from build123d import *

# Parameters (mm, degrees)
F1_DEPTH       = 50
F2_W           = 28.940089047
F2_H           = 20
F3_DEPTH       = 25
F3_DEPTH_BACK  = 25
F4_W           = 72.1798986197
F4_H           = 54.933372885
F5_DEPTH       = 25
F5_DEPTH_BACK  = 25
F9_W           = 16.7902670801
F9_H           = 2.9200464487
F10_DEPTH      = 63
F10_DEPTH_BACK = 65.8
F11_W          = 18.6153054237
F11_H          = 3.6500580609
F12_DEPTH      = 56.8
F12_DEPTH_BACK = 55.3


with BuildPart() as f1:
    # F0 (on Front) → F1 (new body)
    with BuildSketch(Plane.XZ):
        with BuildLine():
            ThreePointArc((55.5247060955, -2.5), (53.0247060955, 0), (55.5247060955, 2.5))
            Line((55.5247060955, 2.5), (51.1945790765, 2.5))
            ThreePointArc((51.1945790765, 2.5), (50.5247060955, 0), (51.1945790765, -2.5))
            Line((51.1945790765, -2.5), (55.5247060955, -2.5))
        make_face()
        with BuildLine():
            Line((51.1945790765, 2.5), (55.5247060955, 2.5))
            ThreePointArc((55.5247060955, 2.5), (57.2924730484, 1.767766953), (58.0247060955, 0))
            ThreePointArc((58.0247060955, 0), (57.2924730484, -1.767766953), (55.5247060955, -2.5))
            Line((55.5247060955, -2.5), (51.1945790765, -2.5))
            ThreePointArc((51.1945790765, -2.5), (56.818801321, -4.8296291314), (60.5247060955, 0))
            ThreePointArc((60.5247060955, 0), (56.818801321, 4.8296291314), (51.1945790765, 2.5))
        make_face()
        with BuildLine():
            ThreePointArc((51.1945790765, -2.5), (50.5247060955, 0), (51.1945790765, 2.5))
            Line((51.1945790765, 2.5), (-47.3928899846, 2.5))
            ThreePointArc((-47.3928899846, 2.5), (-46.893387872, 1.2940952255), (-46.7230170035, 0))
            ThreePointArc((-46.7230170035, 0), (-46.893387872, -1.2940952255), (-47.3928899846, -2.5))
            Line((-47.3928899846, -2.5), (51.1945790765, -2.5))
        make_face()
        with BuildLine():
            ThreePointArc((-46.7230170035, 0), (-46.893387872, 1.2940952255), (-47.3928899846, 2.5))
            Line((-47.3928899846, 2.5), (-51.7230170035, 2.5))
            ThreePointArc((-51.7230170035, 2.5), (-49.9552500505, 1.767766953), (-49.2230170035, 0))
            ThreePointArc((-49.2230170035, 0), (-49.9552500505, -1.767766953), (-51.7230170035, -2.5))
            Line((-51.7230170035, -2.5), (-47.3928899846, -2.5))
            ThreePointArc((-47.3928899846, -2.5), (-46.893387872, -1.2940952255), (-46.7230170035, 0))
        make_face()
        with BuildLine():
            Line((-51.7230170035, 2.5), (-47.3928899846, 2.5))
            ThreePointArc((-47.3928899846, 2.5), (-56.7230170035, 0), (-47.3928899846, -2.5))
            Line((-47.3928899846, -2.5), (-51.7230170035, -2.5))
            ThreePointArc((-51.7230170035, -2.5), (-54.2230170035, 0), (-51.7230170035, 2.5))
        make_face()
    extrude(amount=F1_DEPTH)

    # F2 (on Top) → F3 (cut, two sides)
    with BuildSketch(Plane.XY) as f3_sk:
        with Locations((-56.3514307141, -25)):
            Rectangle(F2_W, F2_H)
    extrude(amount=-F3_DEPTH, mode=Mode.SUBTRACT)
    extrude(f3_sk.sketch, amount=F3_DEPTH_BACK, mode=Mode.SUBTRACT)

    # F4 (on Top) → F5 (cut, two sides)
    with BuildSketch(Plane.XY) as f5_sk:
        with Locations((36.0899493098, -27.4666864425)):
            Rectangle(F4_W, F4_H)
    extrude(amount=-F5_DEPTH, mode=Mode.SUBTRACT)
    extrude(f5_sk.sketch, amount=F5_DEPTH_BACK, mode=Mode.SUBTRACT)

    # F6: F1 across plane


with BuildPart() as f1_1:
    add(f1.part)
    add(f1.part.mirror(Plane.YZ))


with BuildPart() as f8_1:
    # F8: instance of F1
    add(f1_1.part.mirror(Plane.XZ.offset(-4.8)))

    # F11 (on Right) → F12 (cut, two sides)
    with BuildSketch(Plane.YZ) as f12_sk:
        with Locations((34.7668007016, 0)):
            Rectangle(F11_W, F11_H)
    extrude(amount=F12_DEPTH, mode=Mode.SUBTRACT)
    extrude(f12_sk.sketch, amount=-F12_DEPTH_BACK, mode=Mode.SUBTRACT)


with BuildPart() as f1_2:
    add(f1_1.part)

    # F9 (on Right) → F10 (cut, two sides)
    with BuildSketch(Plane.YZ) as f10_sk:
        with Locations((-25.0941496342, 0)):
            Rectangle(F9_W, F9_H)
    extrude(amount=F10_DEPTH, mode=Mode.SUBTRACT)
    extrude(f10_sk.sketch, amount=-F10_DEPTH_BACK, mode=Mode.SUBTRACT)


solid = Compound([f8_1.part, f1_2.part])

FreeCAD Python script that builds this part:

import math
import FreeCAD as App
import Part
import Sketcher

V = App.Vector
Q = App.Units.Quantity


def add_polygon(sketch, points):
    """Adds a closed chain of lines whose ends are joined by coincident constraints."""
    first, n = sketch.GeometryCount, len(points)
    for a, b in zip(points, points[1:] + points[:1]):
        sketch.addGeometry(Part.LineSegment(App.Vector(*a, 0), App.Vector(*b, 0)), False)
    for i in range(n):
        sketch.addConstraint(Sketcher.Constraint("Coincident", first + i, 2, first + (i + 1) % n, 1))

doc = App.newDocument("Part")
body = doc.addObject("PartDesign::Body", "Body")

# Sketch on XZ plane
sketch1 = doc.addObject("Sketcher::SketchObject", "Sketch")
body.addObject(sketch1)
sketch1.AttachmentSupport = (doc.XZ_Plane, [""])
sketch1.MapMode = "FlatFace"
sketch1.addGeometry([
    Part.ArcOfCircle(Part.Circle(V(55.5, 0, 0), V(0, 0, 1), 5), math.radians(-150), math.radians(0)),  # 0
    Part.ArcOfCircle(Part.Circle(V(55.5, 0, 0), V(0, 0, 1), 5), math.radians(0), math.radians(150)),  # 1
    Part.LineSegment(V(51.2, 2.5, 0), V(-47.4, 2.5, 0)),  # 2
    Part.ArcOfCircle(Part.Circle(V(-51.7, 0, 0), V(0, 0, 1), 5), math.radians(30), math.radians(330)),  # 3
    Part.LineSegment(V(-47.4, -2.5, 0), V(51.2, -2.5, 0)),  # 4
    Part.ArcOfCircle(Part.Circle(V(55.5, 0, 0), V(0, 0, 1), 2.5), math.radians(90), math.radians(270)),  # 5
    Part.ArcOfCircle(Part.Circle(V(55.5, 0, 0), V(0, 0, 1), 2.5), math.radians(0), math.radians(90)),  # 6
    Part.ArcOfCircle(Part.Circle(V(55.5, 0, 0), V(0, 0, 1), 2.5), math.radians(-90), math.radians(0)),  # 7
    Part.ArcOfCircle(Part.Circle(V(-51.7, 0, 0), V(0, 0, 1), 2.5), math.radians(0), math.radians(90)),  # 8
    Part.ArcOfCircle(Part.Circle(V(-51.7, 0, 0), V(0, 0, 1), 2.5), math.radians(-90), math.radians(0)),  # 9
    Part.ArcOfCircle(Part.Circle(V(-51.7, 0, 0), V(0, 0, 1), 2.5), math.radians(90), math.radians(270)),  # 10
], False)
sketch1.addConstraint([
    Sketcher.Constraint("Tangent", 0, 2, 1, 1),
    Sketcher.Constraint("Coincident", 1, 2, 2, 1),
    Sketcher.Constraint("Coincident", 2, 2, 3, 1),
    Sketcher.Constraint("Coincident", 3, 2, 4, 1),
    Sketcher.Constraint("Coincident", 4, 2, 0, 1),
    Sketcher.Constraint("Tangent", 5, 1, 6, 2),
    Sketcher.Constraint("Tangent", 6, 1, 7, 2),
    Sketcher.Constraint("Tangent", 7, 1, 5, 2),
    Sketcher.Constraint("Tangent", 8, 1, 9, 2),
    Sketcher.Constraint("Tangent", 9, 1, 10, 2),
    Sketcher.Constraint("Tangent", 10, 1, 8, 2),
    Sketcher.Constraint("Horizontal", 2),
    Sketcher.Constraint("Horizontal", 4),
    Sketcher.Constraint("Coincident", 5, 3, 0, 3),
    Sketcher.Constraint("Coincident", 8, 3, 3, 3),
    Sketcher.Constraint("Equal", 0, 1),
    Sketcher.Constraint("Equal", 1, 3),
    Sketcher.Constraint("Equal", 7, 8),
    Sketcher.Constraint("Symmetric", 2, 2, 3, 2, -1),
    Sketcher.Constraint("Symmetric", 5, 1, 7, 1, -1),
    Sketcher.Constraint("PointOnObject", 0, 2, -1),
    Sketcher.Constraint("PointOnObject", 6, 1, -1),
    Sketcher.Constraint("PointOnObject", 8, 1, -1),
    Sketcher.Constraint("Horizontal", 2, 2, 5, 1),
    Sketcher.Constraint("Vertical", 7, 3, 5, 1),
    Sketcher.Constraint("Vertical", 10, 3, 9, 1),
    Sketcher.Constraint("Vertical", 9, 1, 10, 1),
    Sketcher.Constraint("Radius", 0, Q("5 mm")),
    Sketcher.Constraint("Radius", 5, Q("2.5 mm")),
    Sketcher.Constraint("DistanceX", 2, 2, 2, 1, Q("98.587469 mm")),
    Sketcher.Constraint("DistanceX", -1, 1, 1, 2, Q("51.194579 mm")),
])
pad1 = doc.addObject("PartDesign::Pad", "Pad")
body.addObject(pad1)
pad1.Profile = sketch1
pad1.Length = 50

# Sketch on XY plane
sketch2 = doc.addObject("Sketcher::SketchObject", "Sketch001")
body.addObject(sketch2)
sketch2.AttachmentSupport = (doc.XY_Plane, [""])
sketch2.MapMode = "FlatFace"
add_polygon(sketch2, [(-71, -15), (-71, -35), (-42, -35), (-42, -15)])  # lines 0-3
sketch2.addConstraint([
    Sketcher.Constraint("Vertical", 0),
    Sketcher.Constraint("Horizontal", 1),
    Sketcher.Constraint("Vertical", 2),
    Sketcher.Constraint("Horizontal", 3),
    Sketcher.Constraint("DistanceY", 0, 2, 0, 1, Q("20 mm")),
    Sketcher.Constraint("DistanceY", 0, 2, -1, 1, Q("35 mm")),
    Sketcher.Constraint("DistanceX", 1, 1, 1, 2, Q("28.940089 mm")),
    Sketcher.Constraint("DistanceX", 0, 2, -1, 1, Q("70.821475 mm")),
])
pocket1 = doc.addObject("PartDesign::Pocket", "Pocket")
body.addObject(pocket1)
pocket1.Profile = sketch2
pocket1.Type = "ThroughAll"
pocket1.Midplane = True

# Sketch on XY plane
sketch3 = doc.addObject("Sketcher::SketchObject", "Sketch002")
body.addObject(sketch3)
sketch3.AttachmentSupport = (doc.XY_Plane, [""])
sketch3.MapMode = "FlatFace"
add_polygon(sketch3, [(0, 0), (0, -55), (72, -55), (72, 0)])  # lines 0-3
sketch3.addConstraint([
    Sketcher.Constraint("Vertical", 0),
    Sketcher.Constraint("Horizontal", 1),
    Sketcher.Constraint("Vertical", 2),
    Sketcher.Constraint("Horizontal", 3),
    Sketcher.Constraint("Coincident", 3, 2, -1, 1),
    Sketcher.Constraint("DistanceX", 1, 1, 1, 2, Q("72.179899 mm")),
    Sketcher.Constraint("DistanceY", 0, 2, 0, 1, Q("54.933373 mm")),
])
pocket2 = doc.addObject("PartDesign::Pocket", "Pocket001")
body.addObject(pocket2)
pocket2.Profile = sketch3
pocket2.Type = "ThroughAll"
pocket2.Midplane = True
body2 = doc.addObject("PartDesign::Body", "Body001")
doc.recompute()

body2.BaseFeature = body
doc.recompute()

mirroring = doc.addObject("Part::Mirroring", "Mirroring")
mirroring.Source = body
mirroring.Base = V(0, 0, 0)
mirroring.Normal = V(1, 0, 0)
body3 = doc.addObject("PartDesign::Body", "Body002")
body3.BaseFeature = mirroring
boolean = doc.addObject("PartDesign::Boolean", "Boolean")
body2.addObject(boolean)
boolean.Type = "Fuse"
boolean.addObjects([body3])
doc.recompute()
body4 = doc.addObject("PartDesign::Body", "Body003")
doc.recompute()

mirroring2 = doc.addObject("Part::Mirroring", "Mirroring001")
mirroring2.Source = body2
mirroring2.Base = V(0, 4.8, 0)
mirroring2.Normal = V(0, -1, 0)
body4.BaseFeature = mirroring2
doc.recompute()

# Sketch on YZ plane
sketch4 = doc.addObject("Sketcher::SketchObject", "Sketch003")
body4.addObject(sketch4)
sketch4.AttachmentSupport = (doc.getObject("YZ_Plane003"), [""])
sketch4.MapMode = "FlatFace"
add_polygon(sketch4, [(25.5, 1.8), (25.5, -1.8), (44.1, -1.8), (44.1, 1.8)])  # lines 0-3
sketch4.addConstraint([
    Sketcher.Constraint("Vertical", 0),
    Sketcher.Constraint("Horizontal", 1),
    Sketcher.Constraint("Vertical", 2),
    Sketcher.Constraint("Horizontal", 3),
    Sketcher.Constraint("DistanceY", 0, 2, 0, 1, Q("3.650058 mm")),
    Sketcher.Constraint("DistanceX", 1, 1, 1, 2, Q("18.615305 mm")),
    Sketcher.Constraint("DistanceY", 0, 2, -1, 1, Q("1.825029 mm")),
    Sketcher.Constraint("DistanceX", -1, 1, 0, 2, Q("25.459148 mm")),
])
pocket3 = doc.addObject("PartDesign::Pocket", "Pocket002")
body4.addObject(pocket3)
pocket3.Profile = sketch4
pocket3.Type = "ThroughAll"
pocket3.Midplane = True

# Sketch on YZ plane
sketch5 = doc.addObject("Sketcher::SketchObject", "Sketch004")
body2.addObject(sketch5)
sketch5.AttachmentSupport = (doc.getObject("YZ_Plane001"), [""])
sketch5.MapMode = "FlatFace"
add_polygon(sketch5, [(-33.5, 1.5), (-33.5, -1.5), (-16.7, -1.5), (-16.7, 1.5)])  # lines 0-3
sketch5.addConstraint([
    Sketcher.Constraint("Vertical", 0),
    Sketcher.Constraint("Horizontal", 1),
    Sketcher.Constraint("Vertical", 2),
    Sketcher.Constraint("Horizontal", 3),
    Sketcher.Constraint("DistanceX", 1, 1, 1, 2, Q("16.790267 mm")),
    Sketcher.Constraint("DistanceY", 0, 2, 0, 1, Q("2.920046 mm")),
    Sketcher.Constraint("DistanceX", 0, 2, -1, 1, Q("33.489283 mm")),
    Sketcher.Constraint("DistanceY", 0, 2, -1, 1, Q("1.460023 mm")),
])
pocket4 = doc.addObject("PartDesign::Pocket", "Pocket003")
body2.addObject(pocket4)
pocket4.Profile = sketch5
pocket4.Type = "ThroughAll"
pocket4.Midplane = True
mirroring.Visibility = False
mirroring2.Visibility = False

doc.recompute()
